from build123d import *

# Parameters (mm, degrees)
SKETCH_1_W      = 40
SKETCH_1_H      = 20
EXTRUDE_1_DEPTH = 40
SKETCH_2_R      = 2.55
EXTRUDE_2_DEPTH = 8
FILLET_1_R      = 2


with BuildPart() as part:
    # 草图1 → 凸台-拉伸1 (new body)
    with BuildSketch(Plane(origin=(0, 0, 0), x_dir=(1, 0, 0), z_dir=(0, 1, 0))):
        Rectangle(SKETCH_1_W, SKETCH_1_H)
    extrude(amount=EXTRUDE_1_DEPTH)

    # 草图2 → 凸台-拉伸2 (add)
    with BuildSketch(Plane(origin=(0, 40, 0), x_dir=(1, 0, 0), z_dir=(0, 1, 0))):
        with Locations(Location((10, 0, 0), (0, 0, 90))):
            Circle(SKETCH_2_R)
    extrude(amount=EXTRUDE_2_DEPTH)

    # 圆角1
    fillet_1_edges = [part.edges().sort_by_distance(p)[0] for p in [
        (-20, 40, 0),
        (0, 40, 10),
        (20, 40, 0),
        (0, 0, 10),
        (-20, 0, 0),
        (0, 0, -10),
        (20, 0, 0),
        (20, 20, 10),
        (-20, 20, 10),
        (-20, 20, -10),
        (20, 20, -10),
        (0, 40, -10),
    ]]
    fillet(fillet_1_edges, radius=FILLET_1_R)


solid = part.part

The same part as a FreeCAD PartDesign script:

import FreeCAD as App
import Part
import Sketcher
from FreeCAD import Vector


def edges_at(feature, points):
    """Names of the edges that pass closest to the given points."""
    edges = feature.Shape.Edges
    near = lambda p: min(range(len(edges)), key=lambda i: edges[i].distToShape(Part.Vertex(*p))[0])
    return sorted({f"Edge{near(p) + 1}" for p in points})

doc = App.newDocument("Part")
body = doc.addObject("PartDesign::Body", "Body")

sketch1 = doc.addObject("Sketcher::SketchObject", "Sketch")
body.addObject(sketch1)
sketch1.AttachmentSupport = (doc.XZ_Plane, [""])
sketch1.MapMode = "FlatFace"
sketch1.addGeometry([
    Part.LineSegment(Vector(-20, -10, 0), Vector(-20, 10, 0)),
    Part.LineSegment(Vector(-20, 10, 0), Vector(20, 10, 0)),
    Part.LineSegment(Vector(20, 10, 0), Vector(20, -10, 0)),
    Part.LineSegment(Vector(20, -10, 0), Vector(-20, -10, 0)),
], False)
sketch1.addConstraint([
    Sketcher.Constraint("Coincident", 0, 2, 1, 1),
    Sketcher.Constraint("Coincident", 1, 2, 2, 1),
    Sketcher.Constraint("Coincident", 2, 2, 3, 1),
    Sketcher.Constraint("Coincident", 3, 2, 0, 1),
    Sketcher.Constraint("Vertical", 0),
    Sketcher.Constraint("Horizontal", 1),
    Sketcher.Constraint("Vertical", 2),
    Sketcher.Constraint("Horizontal", 3),
    Sketcher.Constraint("Symmetric", 0, 2, 2, 2, -1, 1),
    Sketcher.Constraint("DistanceX", 1, 1, 1, 2, 40.0),
    Sketcher.Constraint("DistanceY", 0, 1, 0, 2, 20.0),
])
pad1 = doc.addObject("PartDesign::Pad", "Pad")
body.addObject(pad1)
pad1.Profile = sketch1
pad1.Length = 40
pad1.Reversed = True

sketch2 = doc.addObject("Sketcher::SketchObject", "Sketch001")
body.addObject(sketch2)
sketch2.AttachmentSupport = (doc.XZ_Plane, [""])
sketch2.MapMode = "FlatFace"
sketch2.AttachmentOffset = App.Placement(Vector(0, 0, -40), App.Rotation())
sketch2.addGeometry(Part.Circle(Vector(10, 0, 0), Vector(0, 0, 1), 2.5), False)
sketch2.addConstraint([
    Sketcher.Constraint("PointOnObject", 0, 3, -1),
    Sketcher.Constraint("Diameter", 0, 5.1),
    Sketcher.Constraint("DistanceX", -1, 1, 0, 3, 10.0),
])
pad2 = doc.addObject("PartDesign::Pad", "Pad001")
body.addObject(pad2)
pad2.Profile = sketch2
pad2.Length = 8
pad2.Reversed = True
doc.recompute()

fillet = doc.addObject("PartDesign::Fillet", "Fillet")
body.addObject(fillet)
fillet.Base = (pad2, edges_at(pad2, [
    (-20, 40, 0),
    (0, 40, 10),
    (20, 40, 0),
    (0, 0, 10),
    (-20, 0, 0),
    (0, 0, -10),
    (20, 0, 0),
    (20, 20, 10),
    (-20, 20, 10),
    (-20, 20, -10),
    (20, 20, -10),
    (0, 40, -10),
]))
fillet.Radius = 2

doc.recompute()
